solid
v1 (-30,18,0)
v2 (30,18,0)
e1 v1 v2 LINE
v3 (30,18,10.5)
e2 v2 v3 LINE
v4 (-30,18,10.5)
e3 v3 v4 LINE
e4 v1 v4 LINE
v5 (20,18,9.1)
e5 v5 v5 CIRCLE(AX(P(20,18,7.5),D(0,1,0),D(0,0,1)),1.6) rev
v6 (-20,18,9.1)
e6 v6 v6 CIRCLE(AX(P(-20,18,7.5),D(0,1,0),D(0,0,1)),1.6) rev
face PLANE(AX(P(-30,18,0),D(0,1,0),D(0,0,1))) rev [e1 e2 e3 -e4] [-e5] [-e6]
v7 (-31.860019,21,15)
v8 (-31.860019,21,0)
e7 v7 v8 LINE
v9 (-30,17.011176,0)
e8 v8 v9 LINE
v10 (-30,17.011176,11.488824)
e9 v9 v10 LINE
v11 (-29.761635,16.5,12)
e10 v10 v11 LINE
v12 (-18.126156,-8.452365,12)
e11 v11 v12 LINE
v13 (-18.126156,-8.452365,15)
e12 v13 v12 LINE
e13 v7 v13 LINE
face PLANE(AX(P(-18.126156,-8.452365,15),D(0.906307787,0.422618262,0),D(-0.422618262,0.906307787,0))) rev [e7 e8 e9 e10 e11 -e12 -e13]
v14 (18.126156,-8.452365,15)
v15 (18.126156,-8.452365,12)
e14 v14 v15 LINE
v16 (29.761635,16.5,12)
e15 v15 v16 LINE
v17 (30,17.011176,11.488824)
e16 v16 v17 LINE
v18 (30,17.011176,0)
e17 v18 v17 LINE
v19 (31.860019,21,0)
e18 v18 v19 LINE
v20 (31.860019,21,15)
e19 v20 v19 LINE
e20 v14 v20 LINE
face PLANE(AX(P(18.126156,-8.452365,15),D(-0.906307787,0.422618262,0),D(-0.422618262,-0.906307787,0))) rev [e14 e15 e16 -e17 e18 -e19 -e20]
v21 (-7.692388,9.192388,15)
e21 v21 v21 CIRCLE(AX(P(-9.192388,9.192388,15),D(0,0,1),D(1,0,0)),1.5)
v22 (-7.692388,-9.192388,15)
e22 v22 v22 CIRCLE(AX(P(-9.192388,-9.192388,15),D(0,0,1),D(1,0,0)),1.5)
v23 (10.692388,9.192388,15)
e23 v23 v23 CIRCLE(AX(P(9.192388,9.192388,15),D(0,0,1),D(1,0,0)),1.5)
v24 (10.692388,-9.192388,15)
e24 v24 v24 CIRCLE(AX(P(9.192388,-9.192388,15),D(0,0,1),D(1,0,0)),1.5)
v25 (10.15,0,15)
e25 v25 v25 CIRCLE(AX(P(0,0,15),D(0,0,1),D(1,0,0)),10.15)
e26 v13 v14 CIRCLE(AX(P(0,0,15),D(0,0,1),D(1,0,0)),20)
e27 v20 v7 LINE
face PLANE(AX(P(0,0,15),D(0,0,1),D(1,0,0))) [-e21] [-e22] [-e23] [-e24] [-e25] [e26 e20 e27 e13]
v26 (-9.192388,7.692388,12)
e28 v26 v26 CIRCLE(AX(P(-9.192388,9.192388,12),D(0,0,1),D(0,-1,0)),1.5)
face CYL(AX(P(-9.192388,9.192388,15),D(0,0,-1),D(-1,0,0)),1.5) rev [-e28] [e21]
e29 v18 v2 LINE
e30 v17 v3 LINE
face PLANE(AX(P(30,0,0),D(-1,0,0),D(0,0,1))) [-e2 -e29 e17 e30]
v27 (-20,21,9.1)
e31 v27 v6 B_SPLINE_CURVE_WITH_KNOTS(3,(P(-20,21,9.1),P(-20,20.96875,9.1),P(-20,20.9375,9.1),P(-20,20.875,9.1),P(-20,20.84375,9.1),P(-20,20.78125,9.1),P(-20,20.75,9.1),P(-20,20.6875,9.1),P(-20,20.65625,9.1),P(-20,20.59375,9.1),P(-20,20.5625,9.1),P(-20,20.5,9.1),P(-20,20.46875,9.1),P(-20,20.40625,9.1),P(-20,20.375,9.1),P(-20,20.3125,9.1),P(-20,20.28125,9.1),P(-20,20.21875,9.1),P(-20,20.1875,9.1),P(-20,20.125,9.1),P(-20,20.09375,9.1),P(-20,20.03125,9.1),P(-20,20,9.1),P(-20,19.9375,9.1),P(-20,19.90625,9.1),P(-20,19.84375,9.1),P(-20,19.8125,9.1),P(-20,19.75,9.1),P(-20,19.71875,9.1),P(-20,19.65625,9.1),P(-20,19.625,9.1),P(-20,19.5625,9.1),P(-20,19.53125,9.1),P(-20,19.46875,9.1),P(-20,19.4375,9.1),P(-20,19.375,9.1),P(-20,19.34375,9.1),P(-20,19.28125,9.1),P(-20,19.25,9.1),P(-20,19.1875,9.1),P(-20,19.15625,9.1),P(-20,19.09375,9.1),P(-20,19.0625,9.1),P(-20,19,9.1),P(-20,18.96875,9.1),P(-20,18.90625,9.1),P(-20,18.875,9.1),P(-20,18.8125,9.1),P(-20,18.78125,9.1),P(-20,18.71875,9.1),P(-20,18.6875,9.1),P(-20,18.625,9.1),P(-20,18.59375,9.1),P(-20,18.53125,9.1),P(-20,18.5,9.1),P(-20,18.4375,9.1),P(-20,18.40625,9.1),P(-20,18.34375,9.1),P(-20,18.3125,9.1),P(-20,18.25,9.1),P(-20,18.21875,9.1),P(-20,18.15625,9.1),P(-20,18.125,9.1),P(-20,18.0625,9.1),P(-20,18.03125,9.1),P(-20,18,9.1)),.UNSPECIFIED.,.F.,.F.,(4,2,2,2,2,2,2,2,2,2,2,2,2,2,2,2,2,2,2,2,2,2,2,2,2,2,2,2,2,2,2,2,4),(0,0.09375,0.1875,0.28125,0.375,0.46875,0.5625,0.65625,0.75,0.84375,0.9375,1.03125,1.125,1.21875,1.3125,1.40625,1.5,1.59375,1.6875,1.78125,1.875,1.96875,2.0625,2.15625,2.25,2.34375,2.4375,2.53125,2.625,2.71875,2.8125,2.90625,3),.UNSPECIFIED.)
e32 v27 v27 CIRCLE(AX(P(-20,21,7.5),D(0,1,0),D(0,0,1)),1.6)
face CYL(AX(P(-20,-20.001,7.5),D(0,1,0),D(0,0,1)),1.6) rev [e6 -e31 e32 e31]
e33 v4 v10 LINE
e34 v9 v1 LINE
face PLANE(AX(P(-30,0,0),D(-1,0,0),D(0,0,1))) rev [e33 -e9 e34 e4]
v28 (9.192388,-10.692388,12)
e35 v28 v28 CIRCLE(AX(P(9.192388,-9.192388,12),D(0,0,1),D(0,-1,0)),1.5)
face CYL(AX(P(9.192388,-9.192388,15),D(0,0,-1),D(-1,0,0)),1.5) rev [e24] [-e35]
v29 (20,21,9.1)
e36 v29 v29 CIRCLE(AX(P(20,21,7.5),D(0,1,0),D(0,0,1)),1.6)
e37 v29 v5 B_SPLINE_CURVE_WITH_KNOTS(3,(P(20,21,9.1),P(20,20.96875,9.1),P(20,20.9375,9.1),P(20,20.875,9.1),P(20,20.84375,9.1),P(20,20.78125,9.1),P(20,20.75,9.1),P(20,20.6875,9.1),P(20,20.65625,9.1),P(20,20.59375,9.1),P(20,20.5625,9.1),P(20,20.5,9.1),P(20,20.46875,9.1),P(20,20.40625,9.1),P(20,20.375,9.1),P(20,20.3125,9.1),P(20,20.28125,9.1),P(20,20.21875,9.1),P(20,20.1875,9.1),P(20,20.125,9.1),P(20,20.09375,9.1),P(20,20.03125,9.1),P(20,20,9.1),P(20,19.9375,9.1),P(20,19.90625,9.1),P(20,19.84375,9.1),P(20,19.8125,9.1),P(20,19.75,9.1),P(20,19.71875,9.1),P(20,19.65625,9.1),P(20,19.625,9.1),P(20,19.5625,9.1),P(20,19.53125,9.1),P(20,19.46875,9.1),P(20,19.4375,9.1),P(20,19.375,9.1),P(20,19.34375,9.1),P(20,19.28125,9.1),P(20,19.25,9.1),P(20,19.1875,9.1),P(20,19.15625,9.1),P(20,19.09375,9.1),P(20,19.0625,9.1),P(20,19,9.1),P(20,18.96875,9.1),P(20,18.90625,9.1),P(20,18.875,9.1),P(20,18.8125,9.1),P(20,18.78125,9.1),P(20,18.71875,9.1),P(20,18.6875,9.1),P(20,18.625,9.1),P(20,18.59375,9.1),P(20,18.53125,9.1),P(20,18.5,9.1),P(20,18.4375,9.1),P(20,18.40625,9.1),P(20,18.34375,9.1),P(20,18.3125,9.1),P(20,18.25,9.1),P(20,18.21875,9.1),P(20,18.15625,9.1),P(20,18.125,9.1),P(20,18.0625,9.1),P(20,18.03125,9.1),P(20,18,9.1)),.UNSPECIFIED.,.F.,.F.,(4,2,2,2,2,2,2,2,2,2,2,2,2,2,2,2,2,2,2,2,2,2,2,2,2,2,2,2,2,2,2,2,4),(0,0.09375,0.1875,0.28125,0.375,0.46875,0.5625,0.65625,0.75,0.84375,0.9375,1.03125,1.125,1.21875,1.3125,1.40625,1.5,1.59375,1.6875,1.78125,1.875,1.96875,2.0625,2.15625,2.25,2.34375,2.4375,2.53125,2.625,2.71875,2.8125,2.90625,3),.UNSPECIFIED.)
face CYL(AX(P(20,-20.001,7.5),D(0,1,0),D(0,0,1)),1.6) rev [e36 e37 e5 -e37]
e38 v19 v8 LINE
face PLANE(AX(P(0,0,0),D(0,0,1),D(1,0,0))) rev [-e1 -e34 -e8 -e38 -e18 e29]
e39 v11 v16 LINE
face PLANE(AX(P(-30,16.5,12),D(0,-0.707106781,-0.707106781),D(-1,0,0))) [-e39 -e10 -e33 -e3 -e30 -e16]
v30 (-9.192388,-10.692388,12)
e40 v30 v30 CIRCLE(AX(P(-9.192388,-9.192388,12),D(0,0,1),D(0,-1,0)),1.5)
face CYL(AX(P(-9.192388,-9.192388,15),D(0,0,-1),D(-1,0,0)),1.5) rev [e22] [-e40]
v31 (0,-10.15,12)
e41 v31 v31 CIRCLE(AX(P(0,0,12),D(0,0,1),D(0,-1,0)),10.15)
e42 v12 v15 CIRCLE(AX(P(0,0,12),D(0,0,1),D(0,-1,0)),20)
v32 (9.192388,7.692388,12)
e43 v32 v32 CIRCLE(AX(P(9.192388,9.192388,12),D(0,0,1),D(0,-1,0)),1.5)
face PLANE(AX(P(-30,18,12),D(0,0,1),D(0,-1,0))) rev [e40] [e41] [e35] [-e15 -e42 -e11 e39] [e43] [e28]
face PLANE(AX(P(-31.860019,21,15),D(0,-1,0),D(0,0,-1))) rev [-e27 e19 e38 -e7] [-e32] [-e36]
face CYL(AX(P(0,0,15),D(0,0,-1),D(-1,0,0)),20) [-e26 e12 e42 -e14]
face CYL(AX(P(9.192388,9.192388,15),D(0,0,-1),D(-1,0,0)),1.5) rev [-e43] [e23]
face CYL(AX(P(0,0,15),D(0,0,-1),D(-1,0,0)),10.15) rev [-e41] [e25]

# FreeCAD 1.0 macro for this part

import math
import FreeCAD as App
import Part
import Sketcher
from FreeCAD import Vector
Q = App.Units.Quantity


def edges_at(feature, points):
    """Names of the edges that pass closest to the given points."""
    edges = feature.Shape.Edges
    near = lambda p: min(range(len(edges)), key=lambda i: edges[i].distToShape(Part.Vertex(*p))[0])
    return sorted({f"Edge{near(p) + 1}" for p in points})


def add_polygon(sketch, points):
    """Adds a closed chain of lines whose ends are joined by coincident constraints."""
    first, n = sketch.GeometryCount, len(points)
    for a, b in zip(points, points[1:] + points[:1]):
        sketch.addGeometry(Part.LineSegment(App.Vector(*a, 0), App.Vector(*b, 0)), False)
    for i in range(n):
        sketch.addConstraint(Sketcher.Constraint("Coincident", first + i, 2, first + (i + 1) % n, 1))

doc = App.newDocument("Part")
body = doc.addObject("PartDesign::Body", "Body")

# Sketch on XY plane
sketch1 = body.newObject("Sketcher::SketchObject", "Sketch")
sketch1.AttachmentSupport = (doc.getObject("XY_Plane"), [""])
sketch1.MapMode = "FlatFace"
sketch1.addGeometry(Part.LineSegment(Vector(-31.9, 21, 0), Vector(-18.1, -8.5, 0)), False)
sketch1.addGeometry(Part.ArcOfCircle(Part.Circle(Vector(0, 0, 0), Vector(0, 0, 1), 20), math.radians(-155), math.radians(-25)), False)
sketch1.addGeometry(Part.LineSegment(Vector(18.1, -8.5, 0), Vector(31.9, 21, 0)), False)
sketch1.addGeometry(Part.LineSegment(Vector(31.9, 21, 0), Vector(-31.9, 21, 0)), False)
sketch1.addGeometry(Part.Circle(Vector(9.2, -9.2, 0), Vector(0, 0, 1), 1.5), False)
sketch1.addGeometry(Part.Circle(Vector(-9.2, -9.2, 0), Vector(0, 0, 1), 1.5), False)
sketch1.addGeometry(Part.Circle(Vector(9.2, 9.2, 0), Vector(0, 0, 1), 1.5), False)
sketch1.addGeometry(Part.Circle(Vector(0, 0, 0), Vector(0, 0, 1), 10.2), False)
sketch1.addGeometry(Part.Circle(Vector(-9.2, 9.2, 0), Vector(0, 0, 1), 1.5), False)
sketch1.addConstraint(Sketcher.Constraint("Tangent", 0, 2, 1, 1))
sketch1.addConstraint(Sketcher.Constraint("Tangent", 1, 2, 2, 1))
sketch1.addConstraint(Sketcher.Constraint("Coincident", 2, 2, 3, 1))
sketch1.addConstraint(Sketcher.Constraint("Coincident", 3, 2, 0, 1))
sketch1.addConstraint(Sketcher.Constraint("Horizontal", 3))
sketch1.addConstraint(Sketcher.Constraint("Coincident", 1, 3, -1, 1))
sketch1.addConstraint(Sketcher.Constraint("Coincident", 7, 3, -1, 1))
sketch1.addConstraint(Sketcher.Constraint("Equal", 4, 5))
sketch1.addConstraint(Sketcher.Constraint("Equal", 5, 6))
sketch1.addConstraint(Sketcher.Constraint("Equal", 6, 8))
sketch1.addConstraint(Sketcher.Constraint("Symmetric", 5, 3, 6, 3, -1, 1))
sketch1.addConstraint(Sketcher.Constraint("Symmetric", 4, 3, 8, 3, -1, 1))
sketch1.addConstraint(Sketcher.Constraint("Symmetric", 4, 3, 5, 3, -2))
sketch1.addConstraint(Sketcher.Constraint("Horizontal", 0, 2, 1, 2))
sketch1.addConstraint(Sketcher.Constraint("Diameter", 4, 3.0))
sketch1.addConstraint(Sketcher.Constraint("Radius", 1, 20.0))
sketch1.addConstraint(Sketcher.Constraint("Diameter", 7, 20.3))
sketch1.addConstraint(Sketcher.Constraint("Angle", 0, Q("-65 deg")))
sketch1.addConstraint(Sketcher.Constraint("DistanceY", -1, 1, 2, 2, 21.0))
sketch1.addConstraint(Sketcher.Constraint("DistanceX", -1, 1, 4, 3, 9.192388))
sketch1.addConstraint(Sketcher.Constraint("DistanceY", 4, 3, -1, 1, 9.192388))
pad1 = body.newObject("PartDesign::Pad", "Pad")
pad1.Profile = sketch1
pad1.Length = 15

# Sketch on YZ plane
sketch2 = body.newObject("Sketcher::SketchObject", "Sketch001")
sketch2.AttachmentSupport = (doc.getObject("YZ_Plane"), [""])
sketch2.MapMode = "FlatFace"
add_polygon(sketch2, [(18, 12), (-20, 12), (-20, 0), (18, 0)])  # lines 0-3
sketch2.addConstraint(Sketcher.Constraint("Horizontal", 0))
sketch2.addConstraint(Sketcher.Constraint("Vertical", 1))
sketch2.addConstraint(Sketcher.Constraint("Horizontal", 2))
sketch2.addConstraint(Sketcher.Constraint("Vertical", 3))
sketch2.addConstraint(Sketcher.Constraint("PointOnObject", 1, 2, -1))
sketch2.addConstraint(Sketcher.Constraint("DistanceX", 0, 2, 0, 1, 38.0))
sketch2.addConstraint(Sketcher.Constraint("DistanceY", 1, 2, 1, 1, 12.0))
sketch2.addConstraint(Sketcher.Constraint("DistanceX", 0, 2, -1, 1, 20.0))
pocket1 = body.newObject("PartDesign::Pocket", "Pocket")
pocket1.Profile = sketch2
pocket1.Length = 60
pocket1.Midplane = True
doc.recompute()

chamfer = body.newObject("PartDesign::Chamfer", "Chamfer")
chamfer.Base = (pocket1, edges_at(pocket1, [(0, 18, 12)]))
chamfer.Size = 1.5

# Sketch on XZ plane
sketch3 = body.newObject("Sketcher::SketchObject", "Sketch002")
sketch3.AttachmentSupport = (doc.getObject("XZ_Plane"), [""])
sketch3.MapMode = "FlatFace"
sketch3.AttachmentOffset = App.Placement(Vector(0, 0, -21), App.Rotation())
sketch3.addGeometry(Part.Circle(Vector(-20, 7.5, 0), Vector(0, 0, 1), 1.6), False)
sketch3.addConstraint(Sketcher.Constraint("Diameter", 0, 3.2))
sketch3.addConstraint(Sketcher.Constraint("DistanceX", 0, 3, -1, 1, 20.0))
sketch3.addConstraint(Sketcher.Constraint("DistanceY", -1, 1, 0, 3, 7.5))
pocket2 = body.newObject("PartDesign::Pocket", "Pocket001")
pocket2.Profile = sketch3
pocket2.Type = "UpToFirst"
pocket2.Reversed = True

# Sketch on XZ plane
sketch4 = body.newObject("Sketcher::SketchObject", "Sketch003")
sketch4.AttachmentSupport = (doc.getObject("XZ_Plane"), [""])
sketch4.MapMode = "FlatFace"
sketch4.AttachmentOffset = App.Placement(Vector(0, 0, -21), App.Rotation())
sketch4.addGeometry(Part.Circle(Vector(20, 7.5, 0), Vector(0, 0, 1), 1.6), False)
sketch4.addConstraint(Sketcher.Constraint("Diameter", 0, 3.2))
sketch4.addConstraint(Sketcher.Constraint("DistanceX", -1, 1, 0, 3, 20.0))
sketch4.addConstraint(Sketcher.Constraint("DistanceY", -1, 1, 0, 3, 7.5))
pocket3 = body.newObject("PartDesign::Pocket", "Pocket002")
pocket3.Profile = sketch4
pocket3.Type = "UpToFirst"
pocket3.Reversed = True

doc.recompute()
